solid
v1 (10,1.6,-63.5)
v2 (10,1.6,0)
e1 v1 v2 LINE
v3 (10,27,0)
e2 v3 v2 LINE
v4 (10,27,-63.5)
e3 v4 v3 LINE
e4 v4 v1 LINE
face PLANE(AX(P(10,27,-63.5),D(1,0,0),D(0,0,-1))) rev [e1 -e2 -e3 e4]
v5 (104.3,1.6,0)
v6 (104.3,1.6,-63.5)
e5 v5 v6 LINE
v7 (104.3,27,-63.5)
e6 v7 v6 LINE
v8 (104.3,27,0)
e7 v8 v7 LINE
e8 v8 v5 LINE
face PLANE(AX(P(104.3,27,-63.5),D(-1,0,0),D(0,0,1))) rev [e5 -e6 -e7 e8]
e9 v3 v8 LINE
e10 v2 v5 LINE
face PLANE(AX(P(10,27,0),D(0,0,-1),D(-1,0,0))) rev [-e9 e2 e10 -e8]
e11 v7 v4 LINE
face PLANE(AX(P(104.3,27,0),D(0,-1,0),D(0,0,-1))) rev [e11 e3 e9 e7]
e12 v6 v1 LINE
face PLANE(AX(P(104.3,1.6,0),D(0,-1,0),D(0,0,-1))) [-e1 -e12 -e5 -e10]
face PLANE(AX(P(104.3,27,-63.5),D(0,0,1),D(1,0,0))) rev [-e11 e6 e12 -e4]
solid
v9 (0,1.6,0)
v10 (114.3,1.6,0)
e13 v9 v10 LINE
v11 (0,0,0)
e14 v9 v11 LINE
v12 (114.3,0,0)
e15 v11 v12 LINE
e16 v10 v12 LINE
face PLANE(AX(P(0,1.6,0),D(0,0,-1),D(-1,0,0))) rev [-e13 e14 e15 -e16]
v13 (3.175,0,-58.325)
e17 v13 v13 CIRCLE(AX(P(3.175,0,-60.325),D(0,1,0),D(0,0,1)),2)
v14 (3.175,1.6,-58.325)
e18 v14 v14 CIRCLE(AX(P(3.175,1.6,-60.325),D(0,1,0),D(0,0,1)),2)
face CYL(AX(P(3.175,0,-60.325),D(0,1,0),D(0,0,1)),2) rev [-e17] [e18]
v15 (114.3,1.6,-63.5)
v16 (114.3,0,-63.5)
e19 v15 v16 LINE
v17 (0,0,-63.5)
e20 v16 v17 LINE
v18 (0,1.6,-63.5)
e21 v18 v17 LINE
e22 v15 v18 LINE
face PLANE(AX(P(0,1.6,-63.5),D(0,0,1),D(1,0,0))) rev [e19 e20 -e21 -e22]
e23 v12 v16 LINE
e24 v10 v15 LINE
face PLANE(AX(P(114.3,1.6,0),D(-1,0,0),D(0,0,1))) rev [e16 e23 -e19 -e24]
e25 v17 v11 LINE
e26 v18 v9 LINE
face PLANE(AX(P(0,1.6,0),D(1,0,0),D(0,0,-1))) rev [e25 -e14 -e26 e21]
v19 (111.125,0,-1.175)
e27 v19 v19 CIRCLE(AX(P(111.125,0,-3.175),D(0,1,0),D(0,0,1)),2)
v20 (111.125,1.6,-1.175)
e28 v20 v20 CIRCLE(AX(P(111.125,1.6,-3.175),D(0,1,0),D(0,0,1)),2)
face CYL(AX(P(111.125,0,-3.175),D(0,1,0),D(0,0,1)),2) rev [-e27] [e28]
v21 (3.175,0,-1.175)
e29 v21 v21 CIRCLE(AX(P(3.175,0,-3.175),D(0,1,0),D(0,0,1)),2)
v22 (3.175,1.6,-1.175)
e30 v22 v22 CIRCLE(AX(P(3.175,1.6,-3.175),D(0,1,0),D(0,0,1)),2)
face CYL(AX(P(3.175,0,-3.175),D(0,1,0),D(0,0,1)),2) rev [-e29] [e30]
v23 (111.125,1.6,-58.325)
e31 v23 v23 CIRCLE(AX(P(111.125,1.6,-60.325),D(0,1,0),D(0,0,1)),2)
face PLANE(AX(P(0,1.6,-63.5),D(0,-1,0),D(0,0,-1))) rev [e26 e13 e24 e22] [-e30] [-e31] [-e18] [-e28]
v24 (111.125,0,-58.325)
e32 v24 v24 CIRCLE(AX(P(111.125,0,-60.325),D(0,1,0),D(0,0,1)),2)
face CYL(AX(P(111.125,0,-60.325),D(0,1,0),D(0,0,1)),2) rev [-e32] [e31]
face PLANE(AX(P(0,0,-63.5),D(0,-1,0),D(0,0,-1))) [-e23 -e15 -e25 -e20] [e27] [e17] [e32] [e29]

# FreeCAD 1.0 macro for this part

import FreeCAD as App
import Part
import Sketcher
Q = App.Units.Quantity


def add_polygon(sketch, points):
    """Adds a closed chain of lines whose ends are joined by coincident constraints."""
    first, n = sketch.GeometryCount, len(points)
    for a, b in zip(points, points[1:] + points[:1]):
        sketch.addGeometry(Part.LineSegment(App.Vector(*a, 0), App.Vector(*b, 0)), False)
    for i in range(n):
        sketch.addConstraint(Sketcher.Constraint("Coincident", first + i, 2, first + (i + 1) % n, 1))

doc = App.newDocument("Part")
body = doc.addObject("PartDesign::Body", "Body")

# Sketch on XZ plane
sketch1 = body.newObject("Sketcher::SketchObject", "Sketch")
sketch1.AttachmentSupport = (doc.getObject("XZ_Plane"), [""])
sketch1.MapMode = "FlatFace"
add_polygon(sketch1, [(0, -63.5), (0, 0), (114.3, 0), (114.3, -63.5)])  # lines 0-3
sketch1.addConstraint(Sketcher.Constraint("Vertical", 0))
sketch1.addConstraint(Sketcher.Constraint("Horizontal", 1))
sketch1.addConstraint(Sketcher.Constraint("Vertical", 2))
sketch1.addConstraint(Sketcher.Constraint("Horizontal", 3))
sketch1.addConstraint(Sketcher.Constraint("Coincident", 0, 2, -1, 1))
sketch1.addConstraint(Sketcher.Constraint("DistanceX", 1, 1, 1, 2, Q("114.3 mm")))
sketch1.addConstraint(Sketcher.Constraint("DistanceY", 0, 1, 0, 2, Q("63.5 mm")))
pad1 = body.newObject("PartDesign::Pad", "Pad")
pad1.Profile = sketch1
pad1.Length = 1.6
pad1.Reversed = True

# Sketch on XZ plane
sketch2 = body.newObject("Sketcher::SketchObject", "Sketch001")
sketch2.AttachmentSupport = (doc.getObject("XZ_Plane"), [""])
sketch2.MapMode = "FlatFace"
sketch2.AttachmentOffset = App.Placement(App.Vector(0, 0, -1.6), App.Rotation())
sketch2.addGeometry(Part.Circle(App.Vector(3.175, -60.325, 0), App.Vector(0, 0, 1), 2), False)
sketch2.addGeometry(Part.Circle(App.Vector(3.175, -3.175, 0), App.Vector(0, 0, 1), 2), False)
sketch2.addGeometry(Part.Circle(App.Vector(111.125, -60.325, 0), App.Vector(0, 0, 1), 2), False)
sketch2.addGeometry(Part.Circle(App.Vector(111.125, -3.175, 0), App.Vector(0, 0, 1), 2), False)
sketch2.addConstraint(Sketcher.Constraint("Equal", 0, 1))
sketch2.addConstraint(Sketcher.Constraint("Equal", 1, 2))
sketch2.addConstraint(Sketcher.Constraint("Equal", 2, 3))
sketch2.addConstraint(Sketcher.Constraint("Horizontal", 0, 3, 2, 3))
sketch2.addConstraint(Sketcher.Constraint("Horizontal", 1, 3, 3, 3))
sketch2.addConstraint(Sketcher.Constraint("Vertical", 0, 3, 1, 3))
sketch2.addConstraint(Sketcher.Constraint("Vertical", 2, 3, 3, 3))
sketch2.addConstraint(Sketcher.Constraint("Diameter", 0, Q("4 mm")))
sketch2.addConstraint(Sketcher.Constraint("DistanceY", 0, 3, 1, 3, Q("57.15 mm")))
sketch2.addConstraint(Sketcher.Constraint("DistanceX", 0, 3, 2, 3, Q("107.95 mm")))
sketch2.addConstraint(Sketcher.Constraint("DistanceX", -1, 1, 0, 3, Q("3.175 mm")))
sketch2.addConstraint(Sketcher.Constraint("DistanceY", 0, 3, -1, 1, Q("60.325 mm")))
pocket1 = body.newObject("PartDesign::Pocket", "Pocket")
pocket1.Profile = sketch2
pocket1.Length = 1.6
pocket1.Reversed = True
body2 = doc.addObject("PartDesign::Body", "Body001")

# Sketch on XZ plane
sketch3 = body2.newObject("Sketcher::SketchObject", "Sketch002")
sketch3.AttachmentSupport = (doc.getObject("XZ_Plane001"), [""])
sketch3.MapMode = "FlatFace"
sketch3.AttachmentOffset = App.Placement(App.Vector(0, 0, -1.6), App.Rotation())
add_polygon(sketch3, [(104.3, 0), (104.3, -63.5), (10, -63.5), (10, 0)])  # lines 0-3
sketch3.addConstraint(Sketcher.Constraint("Vertical", 0))
sketch3.addConstraint(Sketcher.Constraint("Horizontal", 1))
sketch3.addConstraint(Sketcher.Constraint("Vertical", 2))
sketch3.addConstraint(Sketcher.Constraint("Horizontal", 3))
sketch3.addConstraint(Sketcher.Constraint("PointOnObject", 2, 2, -1))
sketch3.addConstraint(Sketcher.Constraint("DistanceX", 1, 2, 1, 1, Q("94.3 mm")))
sketch3.addConstraint(Sketcher.Constraint("DistanceY", 0, 2, 0, 1, Q("63.5 mm")))
sketch3.addConstraint(Sketcher.Constraint("DistanceX", -1, 1, 1, 2, Q("10 mm")))
pad2 = body2.newObject("PartDesign::Pad", "Pad001")
pad2.Profile = sketch3
pad2.Length = 25.4
pad2.Reversed = True

doc.recompute()
